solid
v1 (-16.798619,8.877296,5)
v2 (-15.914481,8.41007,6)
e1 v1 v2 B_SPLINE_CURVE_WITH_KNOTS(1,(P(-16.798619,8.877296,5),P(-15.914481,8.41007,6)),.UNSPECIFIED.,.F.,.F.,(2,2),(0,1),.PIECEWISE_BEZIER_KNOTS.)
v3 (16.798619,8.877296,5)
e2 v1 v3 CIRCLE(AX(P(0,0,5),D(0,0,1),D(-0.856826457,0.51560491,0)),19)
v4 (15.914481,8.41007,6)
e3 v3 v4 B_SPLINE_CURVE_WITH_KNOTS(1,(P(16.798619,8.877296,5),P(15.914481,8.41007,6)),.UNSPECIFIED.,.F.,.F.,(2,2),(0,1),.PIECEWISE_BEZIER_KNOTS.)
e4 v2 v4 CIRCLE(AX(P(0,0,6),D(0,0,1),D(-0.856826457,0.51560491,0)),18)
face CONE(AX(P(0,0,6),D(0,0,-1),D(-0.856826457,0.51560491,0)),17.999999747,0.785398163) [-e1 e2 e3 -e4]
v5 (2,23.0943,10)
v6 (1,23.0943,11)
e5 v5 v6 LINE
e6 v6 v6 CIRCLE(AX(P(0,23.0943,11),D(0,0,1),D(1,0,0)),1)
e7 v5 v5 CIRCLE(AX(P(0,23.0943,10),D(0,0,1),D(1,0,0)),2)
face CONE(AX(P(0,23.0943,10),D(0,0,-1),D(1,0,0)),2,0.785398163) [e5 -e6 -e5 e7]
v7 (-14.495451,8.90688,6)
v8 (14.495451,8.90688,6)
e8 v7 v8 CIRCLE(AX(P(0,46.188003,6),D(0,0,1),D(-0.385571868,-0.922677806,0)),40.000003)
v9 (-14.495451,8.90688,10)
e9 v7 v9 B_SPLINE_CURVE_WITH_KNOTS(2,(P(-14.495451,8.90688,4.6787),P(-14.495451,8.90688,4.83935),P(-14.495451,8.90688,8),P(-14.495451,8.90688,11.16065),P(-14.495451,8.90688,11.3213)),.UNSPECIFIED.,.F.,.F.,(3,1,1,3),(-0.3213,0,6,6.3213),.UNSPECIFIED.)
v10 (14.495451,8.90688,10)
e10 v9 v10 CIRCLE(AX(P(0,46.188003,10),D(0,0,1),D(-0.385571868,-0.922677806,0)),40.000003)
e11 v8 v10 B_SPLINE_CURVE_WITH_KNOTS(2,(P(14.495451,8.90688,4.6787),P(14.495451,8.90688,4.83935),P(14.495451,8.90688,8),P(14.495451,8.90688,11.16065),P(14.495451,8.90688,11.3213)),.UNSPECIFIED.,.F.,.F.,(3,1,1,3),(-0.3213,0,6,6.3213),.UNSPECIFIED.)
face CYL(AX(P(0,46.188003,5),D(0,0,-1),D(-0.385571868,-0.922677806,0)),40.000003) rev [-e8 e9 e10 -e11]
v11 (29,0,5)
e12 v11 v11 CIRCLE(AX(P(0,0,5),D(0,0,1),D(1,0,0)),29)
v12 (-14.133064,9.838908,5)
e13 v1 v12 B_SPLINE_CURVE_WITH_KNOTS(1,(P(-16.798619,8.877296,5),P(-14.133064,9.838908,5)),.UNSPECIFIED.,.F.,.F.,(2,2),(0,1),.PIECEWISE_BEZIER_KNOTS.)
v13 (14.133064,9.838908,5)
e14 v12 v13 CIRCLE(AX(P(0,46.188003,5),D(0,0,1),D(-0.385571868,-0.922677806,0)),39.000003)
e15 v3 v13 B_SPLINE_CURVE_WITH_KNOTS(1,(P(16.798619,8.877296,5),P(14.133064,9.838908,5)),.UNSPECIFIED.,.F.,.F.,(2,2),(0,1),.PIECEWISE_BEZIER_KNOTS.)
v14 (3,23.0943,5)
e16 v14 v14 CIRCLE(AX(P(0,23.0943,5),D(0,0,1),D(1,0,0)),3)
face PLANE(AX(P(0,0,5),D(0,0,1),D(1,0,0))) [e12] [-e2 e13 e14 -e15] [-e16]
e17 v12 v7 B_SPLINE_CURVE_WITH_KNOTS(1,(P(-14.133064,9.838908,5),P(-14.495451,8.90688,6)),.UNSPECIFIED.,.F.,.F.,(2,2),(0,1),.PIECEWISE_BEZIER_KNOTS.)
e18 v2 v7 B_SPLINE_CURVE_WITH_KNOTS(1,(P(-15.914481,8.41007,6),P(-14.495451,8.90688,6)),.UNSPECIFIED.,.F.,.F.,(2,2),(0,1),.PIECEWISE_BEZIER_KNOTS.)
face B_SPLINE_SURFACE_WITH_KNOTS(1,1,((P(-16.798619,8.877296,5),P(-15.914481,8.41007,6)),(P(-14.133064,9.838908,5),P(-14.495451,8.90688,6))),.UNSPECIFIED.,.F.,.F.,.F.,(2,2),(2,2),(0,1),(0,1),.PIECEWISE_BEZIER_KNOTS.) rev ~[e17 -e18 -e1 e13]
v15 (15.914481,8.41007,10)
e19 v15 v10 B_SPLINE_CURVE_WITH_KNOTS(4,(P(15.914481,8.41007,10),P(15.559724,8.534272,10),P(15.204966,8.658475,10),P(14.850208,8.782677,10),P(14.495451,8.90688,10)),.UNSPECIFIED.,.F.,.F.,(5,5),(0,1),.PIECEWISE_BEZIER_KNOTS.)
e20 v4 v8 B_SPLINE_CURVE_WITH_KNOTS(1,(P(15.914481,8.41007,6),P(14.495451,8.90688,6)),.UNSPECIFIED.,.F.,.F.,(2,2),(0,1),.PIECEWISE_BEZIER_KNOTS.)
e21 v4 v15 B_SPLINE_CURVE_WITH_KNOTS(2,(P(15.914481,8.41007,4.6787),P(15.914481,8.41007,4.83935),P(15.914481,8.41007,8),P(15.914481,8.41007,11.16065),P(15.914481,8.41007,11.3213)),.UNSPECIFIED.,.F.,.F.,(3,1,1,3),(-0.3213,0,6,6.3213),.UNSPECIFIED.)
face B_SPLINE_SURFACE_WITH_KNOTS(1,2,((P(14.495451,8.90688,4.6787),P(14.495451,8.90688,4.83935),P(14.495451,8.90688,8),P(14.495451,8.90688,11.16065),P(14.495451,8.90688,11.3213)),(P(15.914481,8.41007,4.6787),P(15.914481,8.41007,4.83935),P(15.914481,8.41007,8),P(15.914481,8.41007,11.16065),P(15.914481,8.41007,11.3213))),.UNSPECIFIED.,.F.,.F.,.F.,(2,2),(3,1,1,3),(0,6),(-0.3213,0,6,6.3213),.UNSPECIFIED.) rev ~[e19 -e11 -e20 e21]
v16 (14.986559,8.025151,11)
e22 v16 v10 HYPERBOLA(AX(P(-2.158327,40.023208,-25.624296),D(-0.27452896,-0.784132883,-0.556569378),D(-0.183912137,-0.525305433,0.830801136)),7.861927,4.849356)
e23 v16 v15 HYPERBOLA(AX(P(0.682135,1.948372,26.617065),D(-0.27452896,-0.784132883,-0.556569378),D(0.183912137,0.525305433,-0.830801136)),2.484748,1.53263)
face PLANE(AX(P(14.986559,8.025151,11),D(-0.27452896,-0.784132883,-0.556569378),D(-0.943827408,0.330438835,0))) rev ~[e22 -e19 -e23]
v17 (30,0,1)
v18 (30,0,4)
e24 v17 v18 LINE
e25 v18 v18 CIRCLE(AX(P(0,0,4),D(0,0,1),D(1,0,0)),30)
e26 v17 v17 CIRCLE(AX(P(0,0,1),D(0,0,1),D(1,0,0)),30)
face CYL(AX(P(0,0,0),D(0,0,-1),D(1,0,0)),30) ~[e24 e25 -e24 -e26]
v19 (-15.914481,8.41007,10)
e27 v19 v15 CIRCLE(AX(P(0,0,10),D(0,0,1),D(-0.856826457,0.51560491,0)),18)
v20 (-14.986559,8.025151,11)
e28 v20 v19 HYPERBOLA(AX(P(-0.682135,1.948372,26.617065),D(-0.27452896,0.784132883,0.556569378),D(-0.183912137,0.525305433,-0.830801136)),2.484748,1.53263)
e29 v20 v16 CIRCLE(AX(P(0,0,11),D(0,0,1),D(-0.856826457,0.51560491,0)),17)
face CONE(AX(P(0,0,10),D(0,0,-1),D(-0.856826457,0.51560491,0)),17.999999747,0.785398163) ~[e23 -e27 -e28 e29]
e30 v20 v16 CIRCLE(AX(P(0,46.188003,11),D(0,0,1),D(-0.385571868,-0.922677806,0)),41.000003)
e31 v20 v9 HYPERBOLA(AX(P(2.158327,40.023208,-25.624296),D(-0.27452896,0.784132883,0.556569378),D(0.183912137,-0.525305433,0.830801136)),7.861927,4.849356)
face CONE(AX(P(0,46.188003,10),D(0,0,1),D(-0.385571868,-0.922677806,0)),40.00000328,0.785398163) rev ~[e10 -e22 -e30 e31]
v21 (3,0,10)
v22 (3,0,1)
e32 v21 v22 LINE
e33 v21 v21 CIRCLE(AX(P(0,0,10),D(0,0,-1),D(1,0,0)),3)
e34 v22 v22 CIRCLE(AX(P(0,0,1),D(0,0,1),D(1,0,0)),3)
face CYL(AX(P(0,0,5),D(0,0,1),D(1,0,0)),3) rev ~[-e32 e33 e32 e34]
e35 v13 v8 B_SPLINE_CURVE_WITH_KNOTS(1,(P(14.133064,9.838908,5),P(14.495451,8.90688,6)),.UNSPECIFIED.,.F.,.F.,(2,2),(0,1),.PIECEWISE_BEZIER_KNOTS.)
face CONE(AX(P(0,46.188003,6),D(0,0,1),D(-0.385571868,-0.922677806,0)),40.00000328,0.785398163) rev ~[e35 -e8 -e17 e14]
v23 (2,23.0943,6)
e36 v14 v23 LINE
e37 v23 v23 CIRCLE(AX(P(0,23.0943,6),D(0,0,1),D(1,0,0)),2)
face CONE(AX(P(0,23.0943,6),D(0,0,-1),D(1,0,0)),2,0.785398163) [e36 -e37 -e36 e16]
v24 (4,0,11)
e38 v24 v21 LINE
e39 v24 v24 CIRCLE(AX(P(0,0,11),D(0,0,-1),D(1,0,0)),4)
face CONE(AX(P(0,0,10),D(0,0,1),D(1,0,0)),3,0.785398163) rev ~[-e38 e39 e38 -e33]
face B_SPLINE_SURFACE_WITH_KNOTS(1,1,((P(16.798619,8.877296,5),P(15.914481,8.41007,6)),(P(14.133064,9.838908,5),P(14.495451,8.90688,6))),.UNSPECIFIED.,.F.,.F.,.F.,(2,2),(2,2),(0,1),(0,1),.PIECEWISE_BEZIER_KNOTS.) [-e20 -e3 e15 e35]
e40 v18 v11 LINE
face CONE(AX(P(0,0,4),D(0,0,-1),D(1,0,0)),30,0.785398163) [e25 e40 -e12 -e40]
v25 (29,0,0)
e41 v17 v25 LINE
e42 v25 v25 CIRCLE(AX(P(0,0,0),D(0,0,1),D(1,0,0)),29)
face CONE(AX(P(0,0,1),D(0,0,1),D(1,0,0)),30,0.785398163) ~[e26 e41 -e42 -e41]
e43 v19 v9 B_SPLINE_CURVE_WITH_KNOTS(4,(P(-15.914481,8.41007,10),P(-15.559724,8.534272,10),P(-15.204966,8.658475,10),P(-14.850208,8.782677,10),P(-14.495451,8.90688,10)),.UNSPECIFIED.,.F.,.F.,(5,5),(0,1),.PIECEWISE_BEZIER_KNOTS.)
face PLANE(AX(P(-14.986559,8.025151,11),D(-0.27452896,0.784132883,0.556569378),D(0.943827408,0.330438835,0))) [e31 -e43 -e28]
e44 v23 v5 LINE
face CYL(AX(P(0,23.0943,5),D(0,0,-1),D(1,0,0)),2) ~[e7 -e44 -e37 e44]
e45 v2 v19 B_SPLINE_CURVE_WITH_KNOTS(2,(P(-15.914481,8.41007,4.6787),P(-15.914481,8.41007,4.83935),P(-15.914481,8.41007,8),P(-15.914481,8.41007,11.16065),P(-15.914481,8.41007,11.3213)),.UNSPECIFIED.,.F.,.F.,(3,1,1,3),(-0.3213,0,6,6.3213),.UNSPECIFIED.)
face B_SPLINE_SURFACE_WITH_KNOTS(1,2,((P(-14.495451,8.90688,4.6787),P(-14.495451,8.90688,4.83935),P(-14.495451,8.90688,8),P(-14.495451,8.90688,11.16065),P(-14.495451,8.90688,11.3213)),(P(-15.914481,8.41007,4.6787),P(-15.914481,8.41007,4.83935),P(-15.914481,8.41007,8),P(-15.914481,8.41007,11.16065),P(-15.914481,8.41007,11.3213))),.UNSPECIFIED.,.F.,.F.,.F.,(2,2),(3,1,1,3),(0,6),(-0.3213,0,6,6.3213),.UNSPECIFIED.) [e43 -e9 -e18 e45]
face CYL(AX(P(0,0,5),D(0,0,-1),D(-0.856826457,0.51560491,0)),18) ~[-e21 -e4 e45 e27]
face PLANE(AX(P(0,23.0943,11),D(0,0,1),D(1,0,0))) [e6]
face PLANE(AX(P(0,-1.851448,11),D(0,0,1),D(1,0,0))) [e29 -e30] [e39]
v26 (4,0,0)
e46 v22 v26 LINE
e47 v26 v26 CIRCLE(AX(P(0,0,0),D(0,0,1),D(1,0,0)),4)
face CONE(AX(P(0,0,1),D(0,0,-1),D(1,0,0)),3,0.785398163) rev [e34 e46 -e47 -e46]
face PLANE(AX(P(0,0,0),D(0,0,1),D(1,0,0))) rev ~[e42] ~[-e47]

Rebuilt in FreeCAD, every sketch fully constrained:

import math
import FreeCAD as App
import Part
import Sketcher

V = App.Vector

doc = App.newDocument("Part")
body = doc.addObject("PartDesign::Body", "Body")

# Sketch on XY plane
sketch1 = body.newObject("Sketcher::SketchObject", "Sketch")
sketch1.AttachmentSupport = (doc.getObject("XY_Plane"), [""])
sketch1.MapMode = "FlatFace"
sketch1.addGeometry(Part.Circle(V(0, 0, 0), V(0, 0, 1), 30), False)
sketch1.addConstraint([
    Sketcher.Constraint("Coincident", 0, 3, -1, 1),
    Sketcher.Constraint("Diameter", 0, 60.0),
])
pad1 = body.newObject("PartDesign::Pad", "Pad")
pad1.Profile = sketch1
pad1.Length = 5

# Sketch on XY plane
sketch2 = body.newObject("Sketcher::SketchObject", "Sketch001")
sketch2.AttachmentSupport = (doc.getObject("XY_Plane"), [""])
sketch2.MapMode = "FlatFace"
sketch2.AttachmentOffset = App.Placement(V(0, 0, 5), App.Rotation())
sketch2.addGeometry([
    Part.Circle(V(0, 23.1, 0), V(0, 0, 1), 2),
    Part.ArcOfCircle(Part.Circle(V(0, 0, 0), V(0, 0, 1), 18), math.radians(149), math.radians(391)),
    Part.ArcOfCircle(Part.Circle(V(0, 46.2, 0), V(0, 0, 1), 40), math.radians(-113), math.radians(-67)),
], False)
sketch2.addConstraint([
    Sketcher.Constraint("Coincident", 1, 1, 2, 1),
    Sketcher.Constraint("Coincident", 2, 2, 1, 2),
    Sketcher.Constraint("Coincident", 1, 3, -1, 1),
    Sketcher.Constraint("PointOnObject", 0, 3, -2),
    Sketcher.Constraint("PointOnObject", 2, 3, -2),
    Sketcher.Constraint("Diameter", 0, 4.0),
    Sketcher.Constraint("Radius", 1, 18.0),
    Sketcher.Constraint("Radius", 2, 40.000003),
    Sketcher.Constraint("DistanceY", -1, 1, 0, 3, 23.0943),
    Sketcher.Constraint("DistanceY", -1, 1, 1, 1, 9.280888),
])
pad2 = body.newObject("PartDesign::Pad", "Pad001")
pad2.Profile = sketch2
pad2.Length = 6

# Sketch on XY plane
sketch3 = body.newObject("Sketcher::SketchObject", "Sketch002")
sketch3.AttachmentSupport = (doc.getObject("XY_Plane"), [""])
sketch3.MapMode = "FlatFace"
sketch3.AttachmentOffset = App.Placement(V(0, 0, 5), App.Rotation())
sketch3.addGeometry(Part.Circle(V(0, 0, 0), V(0, 0, 1), 3), False)
sketch3.addConstraint([
    Sketcher.Constraint("Coincident", 0, 3, -1, 1),
    Sketcher.Constraint("Diameter", 0, 6.0),
])
pocket1 = body.newObject("PartDesign::Pocket", "Pocket")
pocket1.Profile = sketch3
pocket1.Type = "ThroughAll"
pocket1.Midplane = True
doc.recompute()

chamfer = body.newObject("PartDesign::Chamfer", "Chamfer")
chamfer.Base = (pocket1, ["Edge1"])
chamfer.UseAllEdges = True
chamfer.Size = 1

doc.recompute()
